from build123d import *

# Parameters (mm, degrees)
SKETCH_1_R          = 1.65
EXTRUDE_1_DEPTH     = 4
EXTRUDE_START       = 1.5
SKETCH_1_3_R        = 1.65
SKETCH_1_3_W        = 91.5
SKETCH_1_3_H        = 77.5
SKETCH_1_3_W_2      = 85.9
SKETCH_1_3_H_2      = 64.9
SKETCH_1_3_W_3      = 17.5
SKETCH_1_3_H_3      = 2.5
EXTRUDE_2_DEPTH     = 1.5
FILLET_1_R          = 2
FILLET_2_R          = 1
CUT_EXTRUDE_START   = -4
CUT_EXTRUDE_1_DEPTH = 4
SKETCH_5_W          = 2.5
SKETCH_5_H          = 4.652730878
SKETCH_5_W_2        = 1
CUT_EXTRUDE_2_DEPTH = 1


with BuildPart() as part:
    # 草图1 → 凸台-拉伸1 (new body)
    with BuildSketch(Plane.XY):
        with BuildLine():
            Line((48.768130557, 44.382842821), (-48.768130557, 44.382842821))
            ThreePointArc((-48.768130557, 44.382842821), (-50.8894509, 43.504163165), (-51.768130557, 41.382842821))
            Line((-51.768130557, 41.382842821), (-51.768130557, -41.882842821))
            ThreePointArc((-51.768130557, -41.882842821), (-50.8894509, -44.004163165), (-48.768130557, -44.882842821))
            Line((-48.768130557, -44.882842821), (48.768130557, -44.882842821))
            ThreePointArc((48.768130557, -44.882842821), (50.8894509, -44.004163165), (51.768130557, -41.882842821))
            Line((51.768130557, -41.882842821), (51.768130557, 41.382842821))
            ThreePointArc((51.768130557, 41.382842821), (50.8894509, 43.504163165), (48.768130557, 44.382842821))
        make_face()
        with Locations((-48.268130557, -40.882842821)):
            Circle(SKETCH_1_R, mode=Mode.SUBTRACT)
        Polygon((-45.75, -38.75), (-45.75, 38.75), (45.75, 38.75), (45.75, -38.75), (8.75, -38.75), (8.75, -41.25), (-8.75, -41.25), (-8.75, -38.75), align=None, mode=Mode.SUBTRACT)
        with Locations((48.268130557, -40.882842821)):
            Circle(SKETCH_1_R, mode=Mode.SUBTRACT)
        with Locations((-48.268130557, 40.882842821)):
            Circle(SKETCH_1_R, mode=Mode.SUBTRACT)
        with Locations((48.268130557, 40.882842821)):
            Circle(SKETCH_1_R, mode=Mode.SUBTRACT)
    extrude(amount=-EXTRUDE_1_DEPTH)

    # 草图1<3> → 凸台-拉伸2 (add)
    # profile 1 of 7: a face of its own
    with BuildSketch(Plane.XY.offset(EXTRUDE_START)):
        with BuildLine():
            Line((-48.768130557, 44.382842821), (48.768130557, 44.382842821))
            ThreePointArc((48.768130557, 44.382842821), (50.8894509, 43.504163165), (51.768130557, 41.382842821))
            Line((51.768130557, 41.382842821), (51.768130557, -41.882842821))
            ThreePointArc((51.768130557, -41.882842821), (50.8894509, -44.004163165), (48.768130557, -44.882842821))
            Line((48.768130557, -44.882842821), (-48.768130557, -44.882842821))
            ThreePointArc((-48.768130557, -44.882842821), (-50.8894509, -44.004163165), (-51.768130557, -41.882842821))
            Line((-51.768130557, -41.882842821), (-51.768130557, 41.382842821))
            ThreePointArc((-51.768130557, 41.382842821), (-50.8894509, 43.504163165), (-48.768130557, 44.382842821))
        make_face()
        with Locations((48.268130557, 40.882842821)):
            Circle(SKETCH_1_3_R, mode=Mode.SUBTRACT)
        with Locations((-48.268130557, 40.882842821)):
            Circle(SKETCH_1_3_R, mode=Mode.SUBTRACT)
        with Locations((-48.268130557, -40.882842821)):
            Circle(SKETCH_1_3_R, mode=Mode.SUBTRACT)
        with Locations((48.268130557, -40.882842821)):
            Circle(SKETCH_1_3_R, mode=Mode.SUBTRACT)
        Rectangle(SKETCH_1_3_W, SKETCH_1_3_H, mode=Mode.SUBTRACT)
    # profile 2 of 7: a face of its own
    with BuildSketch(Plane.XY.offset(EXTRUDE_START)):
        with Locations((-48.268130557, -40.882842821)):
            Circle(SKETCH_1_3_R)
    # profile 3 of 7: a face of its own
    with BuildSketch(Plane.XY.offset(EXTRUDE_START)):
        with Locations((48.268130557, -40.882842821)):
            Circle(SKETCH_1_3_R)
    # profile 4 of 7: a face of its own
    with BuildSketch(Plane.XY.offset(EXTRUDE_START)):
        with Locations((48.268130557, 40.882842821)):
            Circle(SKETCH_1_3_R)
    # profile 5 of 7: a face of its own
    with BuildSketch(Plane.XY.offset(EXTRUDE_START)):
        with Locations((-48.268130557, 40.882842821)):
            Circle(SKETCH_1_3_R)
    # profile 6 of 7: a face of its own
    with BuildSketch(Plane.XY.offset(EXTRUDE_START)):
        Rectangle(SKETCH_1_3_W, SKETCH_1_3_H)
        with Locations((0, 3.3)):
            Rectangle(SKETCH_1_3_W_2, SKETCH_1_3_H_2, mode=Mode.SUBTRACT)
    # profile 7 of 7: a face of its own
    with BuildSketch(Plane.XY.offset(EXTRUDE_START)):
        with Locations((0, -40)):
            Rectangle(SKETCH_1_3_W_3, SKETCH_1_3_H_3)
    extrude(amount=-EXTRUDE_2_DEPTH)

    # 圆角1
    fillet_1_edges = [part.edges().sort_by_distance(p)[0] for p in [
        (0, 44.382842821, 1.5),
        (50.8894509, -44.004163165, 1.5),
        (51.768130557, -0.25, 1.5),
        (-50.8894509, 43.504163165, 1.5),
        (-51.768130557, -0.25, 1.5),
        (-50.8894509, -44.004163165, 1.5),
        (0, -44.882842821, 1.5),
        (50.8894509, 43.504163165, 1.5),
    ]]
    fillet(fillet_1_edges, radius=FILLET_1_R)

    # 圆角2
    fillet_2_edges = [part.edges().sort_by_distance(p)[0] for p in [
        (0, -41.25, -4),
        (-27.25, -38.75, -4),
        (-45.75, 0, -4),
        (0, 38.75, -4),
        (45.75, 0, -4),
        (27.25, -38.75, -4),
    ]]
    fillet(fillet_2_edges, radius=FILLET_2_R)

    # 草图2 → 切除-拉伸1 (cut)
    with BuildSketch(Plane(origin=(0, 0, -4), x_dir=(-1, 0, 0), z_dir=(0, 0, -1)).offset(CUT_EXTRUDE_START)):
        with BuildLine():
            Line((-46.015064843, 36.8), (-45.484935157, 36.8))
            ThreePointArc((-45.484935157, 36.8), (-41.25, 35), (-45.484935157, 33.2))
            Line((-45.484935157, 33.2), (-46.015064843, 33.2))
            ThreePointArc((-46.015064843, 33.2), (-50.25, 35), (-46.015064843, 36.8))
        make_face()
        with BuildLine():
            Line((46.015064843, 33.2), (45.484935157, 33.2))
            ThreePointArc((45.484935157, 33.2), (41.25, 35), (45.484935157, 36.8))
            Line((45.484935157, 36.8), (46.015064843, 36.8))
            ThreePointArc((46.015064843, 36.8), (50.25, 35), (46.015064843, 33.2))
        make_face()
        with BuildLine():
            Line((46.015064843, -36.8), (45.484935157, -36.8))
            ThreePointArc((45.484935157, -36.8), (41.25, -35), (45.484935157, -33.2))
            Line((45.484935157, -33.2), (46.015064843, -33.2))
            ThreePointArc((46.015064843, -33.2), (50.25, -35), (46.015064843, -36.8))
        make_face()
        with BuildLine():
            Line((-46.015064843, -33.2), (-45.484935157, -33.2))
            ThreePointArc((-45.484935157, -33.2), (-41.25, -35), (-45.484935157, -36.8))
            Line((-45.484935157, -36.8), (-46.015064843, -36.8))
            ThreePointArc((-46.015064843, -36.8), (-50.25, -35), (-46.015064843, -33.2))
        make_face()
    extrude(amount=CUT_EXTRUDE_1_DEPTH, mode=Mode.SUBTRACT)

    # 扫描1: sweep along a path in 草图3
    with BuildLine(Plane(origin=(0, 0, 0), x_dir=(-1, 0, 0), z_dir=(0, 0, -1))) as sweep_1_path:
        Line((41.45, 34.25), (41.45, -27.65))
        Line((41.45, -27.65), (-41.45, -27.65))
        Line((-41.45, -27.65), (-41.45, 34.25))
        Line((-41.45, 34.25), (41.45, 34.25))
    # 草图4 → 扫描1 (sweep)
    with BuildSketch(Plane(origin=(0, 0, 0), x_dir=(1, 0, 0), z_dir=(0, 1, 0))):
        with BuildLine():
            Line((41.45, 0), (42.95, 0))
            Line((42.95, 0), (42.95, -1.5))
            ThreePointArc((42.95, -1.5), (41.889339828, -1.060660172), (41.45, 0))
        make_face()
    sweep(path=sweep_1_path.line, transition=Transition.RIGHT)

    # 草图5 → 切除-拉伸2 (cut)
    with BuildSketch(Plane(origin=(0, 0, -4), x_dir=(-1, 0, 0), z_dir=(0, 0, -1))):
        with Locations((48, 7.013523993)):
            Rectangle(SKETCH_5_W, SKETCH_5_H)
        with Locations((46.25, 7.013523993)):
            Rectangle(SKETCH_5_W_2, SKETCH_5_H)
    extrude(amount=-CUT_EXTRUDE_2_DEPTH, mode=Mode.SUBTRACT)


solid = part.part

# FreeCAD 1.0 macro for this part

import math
import FreeCAD as App
import Part
import Sketcher
from FreeCAD import Vector
Q = App.Units.Quantity


def edges_at(feature, points):
    """Names of the edges that pass closest to the given points."""
    edges = feature.Shape.Edges
    near = lambda p: min(range(len(edges)), key=lambda i: edges[i].distToShape(Part.Vertex(*p))[0])
    return sorted({f"Edge{near(p) + 1}" for p in points})


def add_polygon(sketch, points):
    """Adds a closed chain of lines whose ends are joined by coincident constraints."""
    first, n = sketch.GeometryCount, len(points)
    for a, b in zip(points, points[1:] + points[:1]):
        sketch.addGeometry(Part.LineSegment(App.Vector(*a, 0), App.Vector(*b, 0)), False)
    for i in range(n):
        sketch.addConstraint(Sketcher.Constraint("Coincident", first + i, 2, first + (i + 1) % n, 1))

doc = App.newDocument("Part")
body = doc.addObject("PartDesign::Body", "Body")

sketch1 = body.newObject("Sketcher::SketchObject", "Sketch")
sketch1.AttachmentSupport = (doc.getObject("XY_Plane"), [""])
sketch1.MapMode = "FlatFace"
sketch1.addGeometry(Part.LineSegment(Vector(48.768131, 44.382843, 0), Vector(-48.768131, 44.382843, 0)), False)
sketch1.addGeometry(Part.ArcOfCircle(Part.Circle(Vector(-48.768131, 41.382843, 0), Vector(0, 0, 1), 3), math.radians(90), math.radians(180)), False)
sketch1.addGeometry(Part.LineSegment(Vector(-51.768131, 41.382843, 0), Vector(-51.768131, -41.882843, 0)), False)
sketch1.addGeometry(Part.ArcOfCircle(Part.Circle(Vector(-48.768131, -41.882843, 0), Vector(0, 0, 1), 3), math.radians(180), math.radians(270)), False)
sketch1.addGeometry(Part.LineSegment(Vector(-48.768131, -44.882843, 0), Vector(48.768131, -44.882843, 0)), False)
sketch1.addGeometry(Part.ArcOfCircle(Part.Circle(Vector(48.768131, -41.882843, 0), Vector(0, 0, 1), 3), math.radians(-90), math.radians(0)), False)
sketch1.addGeometry(Part.LineSegment(Vector(51.768131, -41.882843, 0), Vector(51.768131, 41.382843, 0)), False)
sketch1.addGeometry(Part.ArcOfCircle(Part.Circle(Vector(48.768131, 41.382843, 0), Vector(0, 0, 1), 3), math.radians(0), math.radians(90)), False)
sketch1.addGeometry(Part.Circle(Vector(-48.268131, -40.882843, 0), Vector(0, 0, 1), 1.65), False)
sketch1.addGeometry(Part.Circle(Vector(48.268131, -40.882843, 0), Vector(0, 0, 1), 1.65), False)
add_polygon(sketch1, [(-8.75, -38.75), (-45.75, -38.75), (-45.75, 38.75), (45.75, 38.75), (45.75, -38.75), (8.75, -38.75), (8.75, -41.25), (-8.75, -41.25)])
sketch1.addGeometry(Part.Circle(Vector(-48.268131, 40.882843, 0), Vector(0, 0, 1), 1.65), False)
sketch1.addGeometry(Part.Circle(Vector(48.268131, 40.882843, 0), Vector(0, 0, 1), 1.65), False)
sketch1.addConstraint([
    Sketcher.Constraint("Tangent", 0, 2, 1, 1),
    Sketcher.Constraint("Tangent", 1, 2, 2, 1),
    Sketcher.Constraint("Tangent", 2, 2, 3, 1),
    Sketcher.Constraint("Tangent", 3, 2, 4, 1),
    Sketcher.Constraint("Tangent", 4, 2, 5, 1),
    Sketcher.Constraint("Tangent", 5, 2, 6, 1),
    Sketcher.Constraint("Tangent", 6, 2, 7, 1),
    Sketcher.Constraint("Tangent", 7, 2, 0, 1),
    Sketcher.Constraint("Horizontal", 0),
    Sketcher.Constraint("Vertical", 2),
    Sketcher.Constraint("Horizontal", 4),
    Sketcher.Constraint("Vertical", 6),
    Sketcher.Constraint("Horizontal", 10),
    Sketcher.Constraint("Vertical", 11),
    Sketcher.Constraint("Horizontal", 12),
    Sketcher.Constraint("Vertical", 13),
    Sketcher.Constraint("Horizontal", 14),
    Sketcher.Constraint("Vertical", 15),
    Sketcher.Constraint("Horizontal", 16),
    Sketcher.Constraint("Vertical", 17),
    Sketcher.Constraint("Equal", 1, 3),
    Sketcher.Constraint("Equal", 3, 5),
    Sketcher.Constraint("Equal", 5, 7),
    Sketcher.Constraint("Equal", 8, 9),
    Sketcher.Constraint("Equal", 9, 18),
    Sketcher.Constraint("Equal", 18, 19),
    Sketcher.Constraint("Symmetric", 9, 3, 18, 3, -1, 1),
    Sketcher.Constraint("Symmetric", 8, 3, 19, 3, -1, 1),
    Sketcher.Constraint("Symmetric", 10, 2, 12, 2, -1, 1),
    Sketcher.Constraint("Symmetric", 8, 3, 9, 3, -2),
    Sketcher.Constraint("Symmetric", 14, 2, 17, 2, -2),
    Sketcher.Constraint("Radius", 1, Q("3 mm")),
    Sketcher.Constraint("Diameter", 8, Q("3.3 mm")),
    Sketcher.Constraint("DistanceX", 10, 2, 10, 1, Q("37 mm")),
    Sketcher.Constraint("DistanceX", 12, 1, 12, 2, Q("91.5 mm")),
    Sketcher.Constraint("DistanceY", 11, 1, 11, 2, Q("77.5 mm")),
    Sketcher.Constraint("DistanceY", 15, 2, 15, 1, Q("2.5 mm")),
    Sketcher.Constraint("DistanceY", 3, 3, 8, 3, Q("1 mm")),
    Sketcher.Constraint("DistanceX", 3, 3, 8, 3, Q("0.5 mm")),
    Sketcher.Constraint("DistanceX", 9, 3, 5, 3, Q("0.5 mm")),
    Sketcher.Constraint("DistanceY", 18, 3, 1, 3, Q("0.5 mm")),
    Sketcher.Constraint("DistanceX", 0, 2, 0, 1, Q("97.536261 mm")),
    Sketcher.Constraint("DistanceY", 2, 2, 2, 1, Q("83.265686 mm")),
])
pad1 = body.newObject("PartDesign::Pad", "Pad")
pad1.Profile = sketch1
pad1.Length = 4
pad1.Reversed = True

sketch2 = body.newObject("Sketcher::SketchObject", "Sketch001")
sketch2.AttachmentSupport = (doc.getObject("XY_Plane"), [""])
sketch2.MapMode = "FlatFace"
sketch2.AttachmentOffset = App.Placement(Vector(0, 0, 1.5), App.Rotation())
sketch2.addGeometry(Part.LineSegment(Vector(48.768131, 44.382843, 0), Vector(-48.768131, 44.382843, 0)), False)
sketch2.addGeometry(Part.ArcOfCircle(Part.Circle(Vector(-48.768131, 41.382843, 0), Vector(0, 0, 1), 3), math.radians(90), math.radians(180)), False)
sketch2.addGeometry(Part.LineSegment(Vector(-51.768131, 41.382843, 0), Vector(-51.768131, -41.882843, 0)), False)
sketch2.addGeometry(Part.ArcOfCircle(Part.Circle(Vector(-48.768131, -41.882843, 0), Vector(0, 0, 1), 3), math.radians(180), math.radians(270)), False)
sketch2.addGeometry(Part.LineSegment(Vector(-48.768131, -44.882843, 0), Vector(48.768131, -44.882843, 0)), False)
sketch2.addGeometry(Part.ArcOfCircle(Part.Circle(Vector(48.768131, -41.882843, 0), Vector(0, 0, 1), 3), math.radians(-90), math.radians(0)), False)
sketch2.addGeometry(Part.LineSegment(Vector(51.768131, -41.882843, 0), Vector(51.768131, 41.382843, 0)), False)
sketch2.addGeometry(Part.ArcOfCircle(Part.Circle(Vector(48.768131, 41.382843, 0), Vector(0, 0, 1), 3), math.radians(0), math.radians(90)), False)
add_polygon(sketch2, [(-42.95, -29.15), (-42.95, 35.75), (42.95, 35.75), (42.95, -29.15)])
sketch2.addConstraint([
    Sketcher.Constraint("Tangent", 0, 2, 1, 1),
    Sketcher.Constraint("Tangent", 1, 2, 2, 1),
    Sketcher.Constraint("Tangent", 2, 2, 3, 1),
    Sketcher.Constraint("Tangent", 3, 2, 4, 1),
    Sketcher.Constraint("Tangent", 4, 2, 5, 1),
    Sketcher.Constraint("Tangent", 5, 2, 6, 1),
    Sketcher.Constraint("Tangent", 6, 2, 7, 1),
    Sketcher.Constraint("Tangent", 7, 2, 0, 1),
    Sketcher.Constraint("Horizontal", 0),
    Sketcher.Constraint("Vertical", 2),
    Sketcher.Constraint("Horizontal", 4),
    Sketcher.Constraint("Vertical", 6),
    Sketcher.Constraint("Vertical", 8),
    Sketcher.Constraint("Horizontal", 9),
    Sketcher.Constraint("Vertical", 10),
    Sketcher.Constraint("Horizontal", 11),
    Sketcher.Constraint("Equal", 1, 3),
    Sketcher.Constraint("Equal", 3, 5),
    Sketcher.Constraint("Equal", 5, 7),
    Sketcher.Constraint("Radius", 1, Q("3 mm")),
    Sketcher.Constraint("DistanceX", 9, 1, 9, 2, Q("85.9 mm")),
    Sketcher.Constraint("DistanceY", 8, 1, 8, 2, Q("64.9 mm")),
    Sketcher.Constraint("DistanceX", 8, 2, -1, 1, Q("42.95 mm")),
    Sketcher.Constraint("DistanceY", -1, 1, 8, 2, Q("35.75 mm")),
    Sketcher.Constraint("DistanceX", 0, 2, 0, 1, Q("97.536261 mm")),
    Sketcher.Constraint("DistanceY", 2, 2, 2, 1, Q("83.265686 mm")),
    Sketcher.Constraint("DistanceX", 1, 3, -1, 1, Q("48.768131 mm")),
    Sketcher.Constraint("DistanceY", -1, 1, 1, 3, Q("41.382843 mm")),
])
pad2 = body.newObject("PartDesign::Pad", "Pad001")
pad2.Profile = sketch2
pad2.Length = 1.5
pad2.Reversed = True
doc.recompute()

fillet = body.newObject("PartDesign::Fillet", "Fillet")
fillet.Base = (pad2, edges_at(pad2, [
    (0, 44.383, 1.5),
    (50.889, -44.004, 1.5),
    (51.768, -0.25, 1.5),
    (-50.889, 43.504, 1.5),
    (-51.768, -0.25, 1.5),
    (-50.889, -44.004, 1.5),
    (0, -44.883, 1.5),
    (50.889, 43.504, 1.5),
]))
fillet.Radius = 2
doc.recompute()

fillet2 = body.newObject("PartDesign::Fillet", "Fillet001")
fillet2.Base = (fillet, edges_at(fillet, [
    (0, -41.25, -4),
    (-27.25, -38.75, -4),
    (-45.75, 0, -4),
    (0, 38.75, -4),
    (45.75, 0, -4),
    (27.25, -38.75, -4),
]))
fillet2.Radius = 1

sketch3 = body.newObject("Sketcher::SketchObject", "Sketch002")
sketch3.AttachmentSupport = (doc.getObject("XY_Plane"), [""])
sketch3.MapMode = "FlatFace"
sketch3.addGeometry([
    Part.LineSegment(Vector(45.484935, 36.8, 0), Vector(46.015065, 36.8, 0)),
    Part.ArcOfCircle(Part.Circle(Vector(47.75, 35, 0), Vector(0, 0, 1), 2.5), math.radians(-133.94552), math.radians(133.94552)),
    Part.LineSegment(Vector(46.015065, 33.2, 0), Vector(45.484935, 33.2, 0)),
    Part.ArcOfCircle(Part.Circle(Vector(43.75, 35, 0), Vector(0, 0, 1), 2.5), math.radians(46.05448), math.radians(313.94552)),
    Part.LineSegment(Vector(-45.484935, 33.2, 0), Vector(-46.015065, 33.2, 0)),
    Part.ArcOfCircle(Part.Circle(Vector(-47.75, 35, 0), Vector(0, 0, 1), 2.5), math.radians(46.05448), math.radians(313.94552)),
    Part.LineSegment(Vector(-46.015065, 36.8, 0), Vector(-45.484935, 36.8, 0)),
    Part.ArcOfCircle(Part.Circle(Vector(-43.75, 35, 0), Vector(0, 0, 1), 2.5), math.radians(-133.94552), math.radians(133.94552)),
    Part.LineSegment(Vector(-45.484935, -36.8, 0), Vector(-46.015065, -36.8, 0)),
    Part.ArcOfCircle(Part.Circle(Vector(-47.75, -35, 0), Vector(0, 0, 1), 2.5), math.radians(46.05448), math.radians(313.94552)),
    Part.LineSegment(Vector(-46.015065, -33.2, 0), Vector(-45.484935, -33.2, 0)),
    Part.ArcOfCircle(Part.Circle(Vector(-43.75, -35, 0), Vector(0, 0, 1), 2.5), math.radians(-133.94552), math.radians(133.94552)),
    Part.LineSegment(Vector(45.484935, -33.2, 0), Vector(46.015065, -33.2, 0)),
    Part.ArcOfCircle(Part.Circle(Vector(47.75, -35, 0), Vector(0, 0, 1), 2.5), math.radians(-133.94552), math.radians(133.94552)),
    Part.LineSegment(Vector(46.015065, -36.8, 0), Vector(45.484935, -36.8, 0)),
    Part.ArcOfCircle(Part.Circle(Vector(43.75, -35, 0), Vector(0, 0, 1), 2.5), math.radians(46.05448), math.radians(313.94552)),
], False)
sketch3.addConstraint([
    Sketcher.Constraint("Coincident", 0, 2, 1, 2),
    Sketcher.Constraint("Coincident", 1, 1, 2, 1),
    Sketcher.Constraint("Coincident", 2, 2, 3, 2),
    Sketcher.Constraint("Coincident", 3, 1, 0, 1),
    Sketcher.Constraint("Coincident", 4, 2, 5, 2),
    Sketcher.Constraint("Coincident", 5, 1, 6, 1),
    Sketcher.Constraint("Coincident", 6, 2, 7, 2),
    Sketcher.Constraint("Coincident", 7, 1, 4, 1),
    Sketcher.Constraint("Coincident", 8, 2, 9, 2),
    Sketcher.Constraint("Coincident", 9, 1, 10, 1),
    Sketcher.Constraint("Coincident", 10, 2, 11, 2),
    Sketcher.Constraint("Coincident", 11, 1, 8, 1),
    Sketcher.Constraint("Coincident", 12, 2, 13, 2),
    Sketcher.Constraint("Coincident", 13, 1, 14, 1),
    Sketcher.Constraint("Coincident", 14, 2, 15, 2),
    Sketcher.Constraint("Coincident", 15, 1, 12, 1),
    Sketcher.Constraint("Horizontal", 0),
    Sketcher.Constraint("Horizontal", 2),
    Sketcher.Constraint("Horizontal", 4),
    Sketcher.Constraint("Horizontal", 6),
    Sketcher.Constraint("Horizontal", 8),
    Sketcher.Constraint("Horizontal", 10),
    Sketcher.Constraint("Horizontal", 12),
    Sketcher.Constraint("Horizontal", 14),
    Sketcher.Constraint("Equal", 1, 3),
    Sketcher.Constraint("Equal", 3, 5),
    Sketcher.Constraint("Equal", 5, 7),
    Sketcher.Constraint("Equal", 7, 9),
    Sketcher.Constraint("Equal", 9, 11),
    Sketcher.Constraint("Equal", 11, 13),
    Sketcher.Constraint("Equal", 13, 15),
    Sketcher.Constraint("Symmetric", 1, 3, 9, 3, -1, 1),
    Sketcher.Constraint("Symmetric", 3, 3, 11, 3, -1, 1),
    Sketcher.Constraint("Symmetric", 5, 3, 13, 3, -1, 1),
    Sketcher.Constraint("Symmetric", 7, 3, 15, 3, -1, 1),
    Sketcher.Constraint("Symmetric", 1, 3, 5, 3, -2),
    Sketcher.Constraint("Symmetric", 3, 3, 7, 3, -2),
    Sketcher.Constraint("Horizontal", 1, 3, 3, 3),
    Sketcher.Constraint("Horizontal", 2, 2, 4, 2),
    Sketcher.Constraint("Horizontal", 3, 1, 5, 1),
    Sketcher.Constraint("Horizontal", 10, 2, 12, 2),
    Sketcher.Constraint("Horizontal", 11, 1, 13, 1),
    Sketcher.Constraint("Vertical", 0, 2, 1, 1),
    Sketcher.Constraint("Vertical", 5, 1, 8, 2),
    Sketcher.Constraint("Vertical", 8, 2, 9, 1),
    Sketcher.Constraint("Radius", 1, Q("2.5 mm")),
    Sketcher.Constraint("DistanceY", -1, 1, 1, 3, Q("35 mm")),
    Sketcher.Constraint("DistanceX", 3, 3, 1, 3, Q("4 mm")),
    Sketcher.Constraint("DistanceY", -1, 1, 0, 2, Q("36.8 mm")),
    Sketcher.Constraint("DistanceX", 5, 3, 3, 3, Q("91.5 mm")),
])
pocket1 = body.newObject("PartDesign::Pocket", "Pocket")
pocket1.Profile = sketch3
pocket1.Length = 4

sketch4 = body.newObject("Sketcher::SketchObject", "Sketch003")
sketch4.AttachmentSupport = (doc.getObject("XZ_Plane"), [""])
sketch4.MapMode = "FlatFace"
sketch4.addGeometry([
    Part.LineSegment(Vector(42.95, 0, 0), Vector(41.45, 0, 0)),
    Part.ArcOfCircle(Part.Circle(Vector(42.95, 0, 0), Vector(0, 0, 1), 1.5), math.radians(90), math.radians(180)),
    Part.LineSegment(Vector(42.95, 1.5, 0), Vector(42.95, 0, 0)),
], False)
sketch4.addConstraint([
    Sketcher.Constraint("Coincident", 0, 2, 1, 2),
    Sketcher.Constraint("Coincident", 1, 1, 2, 1),
    Sketcher.Constraint("Coincident", 2, 2, 0, 1),
    Sketcher.Constraint("Horizontal", 0),
    Sketcher.Constraint("Vertical", 2),
    Sketcher.Constraint("Coincident", 2, 2, 1, 3),
    Sketcher.Constraint("PointOnObject", 1, 3, -1),
    Sketcher.Constraint("Radius", 1, Q("1.5 mm")),
    Sketcher.Constraint("DistanceX", -1, 1, 1, 3, Q("42.95 mm")),
])

sketch5 = body.newObject("Sketcher::SketchObject", "Sketch004")
sketch5.AttachmentSupport = (doc.getObject("XY_Plane"), [""])
sketch5.MapMode = "FlatFace"
add_polygon(sketch5, [(-41.45, 34.25), (-41.45, -27.65), (41.45, -27.65), (41.45, 34.25)])
sketch5.addConstraint([
    Sketcher.Constraint("Vertical", 0),
    Sketcher.Constraint("Horizontal", 1),
    Sketcher.Constraint("Vertical", 2),
    Sketcher.Constraint("Horizontal", 3),
    Sketcher.Constraint("DistanceX", 1, 1, 1, 2, Q("82.9 mm")),
    Sketcher.Constraint("DistanceY", 0, 2, 0, 1, Q("61.9 mm")),
    Sketcher.Constraint("DistanceX", 0, 2, -1, 1, Q("41.45 mm")),
    Sketcher.Constraint("DistanceY", 0, 2, -1, 1, Q("27.65 mm")),
])
doc.recompute()

additivepipe = body.newObject("PartDesign::AdditivePipe", "AdditivePipe")
additivepipe.Profile = sketch4
additivepipe.Spine = (sketch5, ["Edge1", "Edge2", "Edge3", "Edge4"])
additivepipe.Transition = "Right corner"

sketch6 = body.newObject("Sketcher::SketchObject", "Sketch005")
sketch6.AttachmentSupport = (doc.getObject("XY_Plane"), [""])
sketch6.MapMode = "FlatFace"
sketch6.AttachmentOffset = App.Placement(Vector(0, 0, -4), App.Rotation())
add_polygon(sketch6, [(-49.25, 4.687159), (-49.25, 9.339889), (-45.75, 9.339889), (-45.75, 4.687159)])
sketch6.addConstraint([
    Sketcher.Constraint("Vertical", 0),
    Sketcher.Constraint("Horizontal", 1),
    Sketcher.Constraint("Vertical", 2),
    Sketcher.Constraint("Horizontal", 3),
    Sketcher.Constraint("DistanceX", 1, 1, 1, 2, Q("3.5 mm")),
    Sketcher.Constraint("DistanceX", 0, 2, -1, 1, Q("49.25 mm")),
    Sketcher.Constraint("DistanceY", 0, 1, 0, 2, Q("4.652731 mm")),
    Sketcher.Constraint("DistanceY", -1, 1, 0, 2, Q("9.339889 mm")),
])
pocket2 = body.newObject("PartDesign::Pocket", "Pocket001")
pocket2.Profile = sketch6
pocket2.Length = 1
pocket2.Reversed = True

doc.recompute()
